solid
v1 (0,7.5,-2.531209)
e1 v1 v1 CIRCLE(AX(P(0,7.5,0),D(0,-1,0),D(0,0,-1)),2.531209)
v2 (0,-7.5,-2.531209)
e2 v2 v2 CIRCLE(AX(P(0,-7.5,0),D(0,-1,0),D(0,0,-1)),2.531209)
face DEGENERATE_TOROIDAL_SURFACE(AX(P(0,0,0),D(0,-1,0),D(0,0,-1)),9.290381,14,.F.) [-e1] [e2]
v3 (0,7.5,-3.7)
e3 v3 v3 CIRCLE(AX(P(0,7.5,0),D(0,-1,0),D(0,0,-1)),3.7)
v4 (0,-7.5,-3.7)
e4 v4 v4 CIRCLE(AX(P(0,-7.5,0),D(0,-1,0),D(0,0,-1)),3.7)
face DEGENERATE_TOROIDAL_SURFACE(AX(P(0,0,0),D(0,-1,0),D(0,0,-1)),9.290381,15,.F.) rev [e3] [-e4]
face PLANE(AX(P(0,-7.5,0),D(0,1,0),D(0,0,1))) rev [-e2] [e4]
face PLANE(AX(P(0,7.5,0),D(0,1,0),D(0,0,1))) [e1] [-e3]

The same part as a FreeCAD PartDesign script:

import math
import FreeCAD as App
import Part
import Sketcher
from FreeCAD import Vector

doc = App.newDocument("Part")
body = doc.addObject("PartDesign::Body", "Body")

sketch1 = body.newObject("Sketcher::SketchObject", "Sketch")
sketch1.AttachmentSupport = (doc.getObject("XY_Plane"), [""])
sketch1.MapMode = "FlatFace"
sketch1.addGeometry([
    Part.LineSegment(Vector(-2.5, 7.5, 0), Vector(-3.7, 7.5, 0)),
    Part.ArcOfCircle(Part.Circle(Vector(9.3, 0, 0), Vector(0, 0, 1), 15), math.radians(150), math.radians(210)),
    Part.LineSegment(Vector(-3.7, -7.5, 0), Vector(-2.5, -7.5, 0)),
    Part.ArcOfCircle(Part.Circle(Vector(9.3, 0, 0), Vector(0, 0, 1), 14), math.radians(148), math.radians(212)),
], False)
sketch1.addConstraint([
    Sketcher.Constraint("Coincident", 0, 2, 1, 1),
    Sketcher.Constraint("Coincident", 1, 2, 2, 1),
    Sketcher.Constraint("Coincident", 2, 2, 3, 2),
    Sketcher.Constraint("Coincident", 3, 1, 0, 1),
    Sketcher.Constraint("Horizontal", 0),
    Sketcher.Constraint("Horizontal", 2),
    Sketcher.Constraint("Coincident", 3, 3, 1, 3),
    Sketcher.Constraint("Symmetric", 0, 2, 1, 2, -1),
    Sketcher.Constraint("Radius", 1, 15.0),
    Sketcher.Constraint("Radius", 3, 14.0),
    Sketcher.Constraint("DistanceY", 1, 2, 0, 2, 15.0),
    Sketcher.Constraint("DistanceX", 0, 2, -1, 1, 3.7),
])
revolution = body.newObject("PartDesign::Revolution", "Revolution")
revolution.Profile = sketch1
revolution.ReferenceAxis = (sketch1, ["V_Axis"])
revolution.Angle = 360

doc.recompute()
